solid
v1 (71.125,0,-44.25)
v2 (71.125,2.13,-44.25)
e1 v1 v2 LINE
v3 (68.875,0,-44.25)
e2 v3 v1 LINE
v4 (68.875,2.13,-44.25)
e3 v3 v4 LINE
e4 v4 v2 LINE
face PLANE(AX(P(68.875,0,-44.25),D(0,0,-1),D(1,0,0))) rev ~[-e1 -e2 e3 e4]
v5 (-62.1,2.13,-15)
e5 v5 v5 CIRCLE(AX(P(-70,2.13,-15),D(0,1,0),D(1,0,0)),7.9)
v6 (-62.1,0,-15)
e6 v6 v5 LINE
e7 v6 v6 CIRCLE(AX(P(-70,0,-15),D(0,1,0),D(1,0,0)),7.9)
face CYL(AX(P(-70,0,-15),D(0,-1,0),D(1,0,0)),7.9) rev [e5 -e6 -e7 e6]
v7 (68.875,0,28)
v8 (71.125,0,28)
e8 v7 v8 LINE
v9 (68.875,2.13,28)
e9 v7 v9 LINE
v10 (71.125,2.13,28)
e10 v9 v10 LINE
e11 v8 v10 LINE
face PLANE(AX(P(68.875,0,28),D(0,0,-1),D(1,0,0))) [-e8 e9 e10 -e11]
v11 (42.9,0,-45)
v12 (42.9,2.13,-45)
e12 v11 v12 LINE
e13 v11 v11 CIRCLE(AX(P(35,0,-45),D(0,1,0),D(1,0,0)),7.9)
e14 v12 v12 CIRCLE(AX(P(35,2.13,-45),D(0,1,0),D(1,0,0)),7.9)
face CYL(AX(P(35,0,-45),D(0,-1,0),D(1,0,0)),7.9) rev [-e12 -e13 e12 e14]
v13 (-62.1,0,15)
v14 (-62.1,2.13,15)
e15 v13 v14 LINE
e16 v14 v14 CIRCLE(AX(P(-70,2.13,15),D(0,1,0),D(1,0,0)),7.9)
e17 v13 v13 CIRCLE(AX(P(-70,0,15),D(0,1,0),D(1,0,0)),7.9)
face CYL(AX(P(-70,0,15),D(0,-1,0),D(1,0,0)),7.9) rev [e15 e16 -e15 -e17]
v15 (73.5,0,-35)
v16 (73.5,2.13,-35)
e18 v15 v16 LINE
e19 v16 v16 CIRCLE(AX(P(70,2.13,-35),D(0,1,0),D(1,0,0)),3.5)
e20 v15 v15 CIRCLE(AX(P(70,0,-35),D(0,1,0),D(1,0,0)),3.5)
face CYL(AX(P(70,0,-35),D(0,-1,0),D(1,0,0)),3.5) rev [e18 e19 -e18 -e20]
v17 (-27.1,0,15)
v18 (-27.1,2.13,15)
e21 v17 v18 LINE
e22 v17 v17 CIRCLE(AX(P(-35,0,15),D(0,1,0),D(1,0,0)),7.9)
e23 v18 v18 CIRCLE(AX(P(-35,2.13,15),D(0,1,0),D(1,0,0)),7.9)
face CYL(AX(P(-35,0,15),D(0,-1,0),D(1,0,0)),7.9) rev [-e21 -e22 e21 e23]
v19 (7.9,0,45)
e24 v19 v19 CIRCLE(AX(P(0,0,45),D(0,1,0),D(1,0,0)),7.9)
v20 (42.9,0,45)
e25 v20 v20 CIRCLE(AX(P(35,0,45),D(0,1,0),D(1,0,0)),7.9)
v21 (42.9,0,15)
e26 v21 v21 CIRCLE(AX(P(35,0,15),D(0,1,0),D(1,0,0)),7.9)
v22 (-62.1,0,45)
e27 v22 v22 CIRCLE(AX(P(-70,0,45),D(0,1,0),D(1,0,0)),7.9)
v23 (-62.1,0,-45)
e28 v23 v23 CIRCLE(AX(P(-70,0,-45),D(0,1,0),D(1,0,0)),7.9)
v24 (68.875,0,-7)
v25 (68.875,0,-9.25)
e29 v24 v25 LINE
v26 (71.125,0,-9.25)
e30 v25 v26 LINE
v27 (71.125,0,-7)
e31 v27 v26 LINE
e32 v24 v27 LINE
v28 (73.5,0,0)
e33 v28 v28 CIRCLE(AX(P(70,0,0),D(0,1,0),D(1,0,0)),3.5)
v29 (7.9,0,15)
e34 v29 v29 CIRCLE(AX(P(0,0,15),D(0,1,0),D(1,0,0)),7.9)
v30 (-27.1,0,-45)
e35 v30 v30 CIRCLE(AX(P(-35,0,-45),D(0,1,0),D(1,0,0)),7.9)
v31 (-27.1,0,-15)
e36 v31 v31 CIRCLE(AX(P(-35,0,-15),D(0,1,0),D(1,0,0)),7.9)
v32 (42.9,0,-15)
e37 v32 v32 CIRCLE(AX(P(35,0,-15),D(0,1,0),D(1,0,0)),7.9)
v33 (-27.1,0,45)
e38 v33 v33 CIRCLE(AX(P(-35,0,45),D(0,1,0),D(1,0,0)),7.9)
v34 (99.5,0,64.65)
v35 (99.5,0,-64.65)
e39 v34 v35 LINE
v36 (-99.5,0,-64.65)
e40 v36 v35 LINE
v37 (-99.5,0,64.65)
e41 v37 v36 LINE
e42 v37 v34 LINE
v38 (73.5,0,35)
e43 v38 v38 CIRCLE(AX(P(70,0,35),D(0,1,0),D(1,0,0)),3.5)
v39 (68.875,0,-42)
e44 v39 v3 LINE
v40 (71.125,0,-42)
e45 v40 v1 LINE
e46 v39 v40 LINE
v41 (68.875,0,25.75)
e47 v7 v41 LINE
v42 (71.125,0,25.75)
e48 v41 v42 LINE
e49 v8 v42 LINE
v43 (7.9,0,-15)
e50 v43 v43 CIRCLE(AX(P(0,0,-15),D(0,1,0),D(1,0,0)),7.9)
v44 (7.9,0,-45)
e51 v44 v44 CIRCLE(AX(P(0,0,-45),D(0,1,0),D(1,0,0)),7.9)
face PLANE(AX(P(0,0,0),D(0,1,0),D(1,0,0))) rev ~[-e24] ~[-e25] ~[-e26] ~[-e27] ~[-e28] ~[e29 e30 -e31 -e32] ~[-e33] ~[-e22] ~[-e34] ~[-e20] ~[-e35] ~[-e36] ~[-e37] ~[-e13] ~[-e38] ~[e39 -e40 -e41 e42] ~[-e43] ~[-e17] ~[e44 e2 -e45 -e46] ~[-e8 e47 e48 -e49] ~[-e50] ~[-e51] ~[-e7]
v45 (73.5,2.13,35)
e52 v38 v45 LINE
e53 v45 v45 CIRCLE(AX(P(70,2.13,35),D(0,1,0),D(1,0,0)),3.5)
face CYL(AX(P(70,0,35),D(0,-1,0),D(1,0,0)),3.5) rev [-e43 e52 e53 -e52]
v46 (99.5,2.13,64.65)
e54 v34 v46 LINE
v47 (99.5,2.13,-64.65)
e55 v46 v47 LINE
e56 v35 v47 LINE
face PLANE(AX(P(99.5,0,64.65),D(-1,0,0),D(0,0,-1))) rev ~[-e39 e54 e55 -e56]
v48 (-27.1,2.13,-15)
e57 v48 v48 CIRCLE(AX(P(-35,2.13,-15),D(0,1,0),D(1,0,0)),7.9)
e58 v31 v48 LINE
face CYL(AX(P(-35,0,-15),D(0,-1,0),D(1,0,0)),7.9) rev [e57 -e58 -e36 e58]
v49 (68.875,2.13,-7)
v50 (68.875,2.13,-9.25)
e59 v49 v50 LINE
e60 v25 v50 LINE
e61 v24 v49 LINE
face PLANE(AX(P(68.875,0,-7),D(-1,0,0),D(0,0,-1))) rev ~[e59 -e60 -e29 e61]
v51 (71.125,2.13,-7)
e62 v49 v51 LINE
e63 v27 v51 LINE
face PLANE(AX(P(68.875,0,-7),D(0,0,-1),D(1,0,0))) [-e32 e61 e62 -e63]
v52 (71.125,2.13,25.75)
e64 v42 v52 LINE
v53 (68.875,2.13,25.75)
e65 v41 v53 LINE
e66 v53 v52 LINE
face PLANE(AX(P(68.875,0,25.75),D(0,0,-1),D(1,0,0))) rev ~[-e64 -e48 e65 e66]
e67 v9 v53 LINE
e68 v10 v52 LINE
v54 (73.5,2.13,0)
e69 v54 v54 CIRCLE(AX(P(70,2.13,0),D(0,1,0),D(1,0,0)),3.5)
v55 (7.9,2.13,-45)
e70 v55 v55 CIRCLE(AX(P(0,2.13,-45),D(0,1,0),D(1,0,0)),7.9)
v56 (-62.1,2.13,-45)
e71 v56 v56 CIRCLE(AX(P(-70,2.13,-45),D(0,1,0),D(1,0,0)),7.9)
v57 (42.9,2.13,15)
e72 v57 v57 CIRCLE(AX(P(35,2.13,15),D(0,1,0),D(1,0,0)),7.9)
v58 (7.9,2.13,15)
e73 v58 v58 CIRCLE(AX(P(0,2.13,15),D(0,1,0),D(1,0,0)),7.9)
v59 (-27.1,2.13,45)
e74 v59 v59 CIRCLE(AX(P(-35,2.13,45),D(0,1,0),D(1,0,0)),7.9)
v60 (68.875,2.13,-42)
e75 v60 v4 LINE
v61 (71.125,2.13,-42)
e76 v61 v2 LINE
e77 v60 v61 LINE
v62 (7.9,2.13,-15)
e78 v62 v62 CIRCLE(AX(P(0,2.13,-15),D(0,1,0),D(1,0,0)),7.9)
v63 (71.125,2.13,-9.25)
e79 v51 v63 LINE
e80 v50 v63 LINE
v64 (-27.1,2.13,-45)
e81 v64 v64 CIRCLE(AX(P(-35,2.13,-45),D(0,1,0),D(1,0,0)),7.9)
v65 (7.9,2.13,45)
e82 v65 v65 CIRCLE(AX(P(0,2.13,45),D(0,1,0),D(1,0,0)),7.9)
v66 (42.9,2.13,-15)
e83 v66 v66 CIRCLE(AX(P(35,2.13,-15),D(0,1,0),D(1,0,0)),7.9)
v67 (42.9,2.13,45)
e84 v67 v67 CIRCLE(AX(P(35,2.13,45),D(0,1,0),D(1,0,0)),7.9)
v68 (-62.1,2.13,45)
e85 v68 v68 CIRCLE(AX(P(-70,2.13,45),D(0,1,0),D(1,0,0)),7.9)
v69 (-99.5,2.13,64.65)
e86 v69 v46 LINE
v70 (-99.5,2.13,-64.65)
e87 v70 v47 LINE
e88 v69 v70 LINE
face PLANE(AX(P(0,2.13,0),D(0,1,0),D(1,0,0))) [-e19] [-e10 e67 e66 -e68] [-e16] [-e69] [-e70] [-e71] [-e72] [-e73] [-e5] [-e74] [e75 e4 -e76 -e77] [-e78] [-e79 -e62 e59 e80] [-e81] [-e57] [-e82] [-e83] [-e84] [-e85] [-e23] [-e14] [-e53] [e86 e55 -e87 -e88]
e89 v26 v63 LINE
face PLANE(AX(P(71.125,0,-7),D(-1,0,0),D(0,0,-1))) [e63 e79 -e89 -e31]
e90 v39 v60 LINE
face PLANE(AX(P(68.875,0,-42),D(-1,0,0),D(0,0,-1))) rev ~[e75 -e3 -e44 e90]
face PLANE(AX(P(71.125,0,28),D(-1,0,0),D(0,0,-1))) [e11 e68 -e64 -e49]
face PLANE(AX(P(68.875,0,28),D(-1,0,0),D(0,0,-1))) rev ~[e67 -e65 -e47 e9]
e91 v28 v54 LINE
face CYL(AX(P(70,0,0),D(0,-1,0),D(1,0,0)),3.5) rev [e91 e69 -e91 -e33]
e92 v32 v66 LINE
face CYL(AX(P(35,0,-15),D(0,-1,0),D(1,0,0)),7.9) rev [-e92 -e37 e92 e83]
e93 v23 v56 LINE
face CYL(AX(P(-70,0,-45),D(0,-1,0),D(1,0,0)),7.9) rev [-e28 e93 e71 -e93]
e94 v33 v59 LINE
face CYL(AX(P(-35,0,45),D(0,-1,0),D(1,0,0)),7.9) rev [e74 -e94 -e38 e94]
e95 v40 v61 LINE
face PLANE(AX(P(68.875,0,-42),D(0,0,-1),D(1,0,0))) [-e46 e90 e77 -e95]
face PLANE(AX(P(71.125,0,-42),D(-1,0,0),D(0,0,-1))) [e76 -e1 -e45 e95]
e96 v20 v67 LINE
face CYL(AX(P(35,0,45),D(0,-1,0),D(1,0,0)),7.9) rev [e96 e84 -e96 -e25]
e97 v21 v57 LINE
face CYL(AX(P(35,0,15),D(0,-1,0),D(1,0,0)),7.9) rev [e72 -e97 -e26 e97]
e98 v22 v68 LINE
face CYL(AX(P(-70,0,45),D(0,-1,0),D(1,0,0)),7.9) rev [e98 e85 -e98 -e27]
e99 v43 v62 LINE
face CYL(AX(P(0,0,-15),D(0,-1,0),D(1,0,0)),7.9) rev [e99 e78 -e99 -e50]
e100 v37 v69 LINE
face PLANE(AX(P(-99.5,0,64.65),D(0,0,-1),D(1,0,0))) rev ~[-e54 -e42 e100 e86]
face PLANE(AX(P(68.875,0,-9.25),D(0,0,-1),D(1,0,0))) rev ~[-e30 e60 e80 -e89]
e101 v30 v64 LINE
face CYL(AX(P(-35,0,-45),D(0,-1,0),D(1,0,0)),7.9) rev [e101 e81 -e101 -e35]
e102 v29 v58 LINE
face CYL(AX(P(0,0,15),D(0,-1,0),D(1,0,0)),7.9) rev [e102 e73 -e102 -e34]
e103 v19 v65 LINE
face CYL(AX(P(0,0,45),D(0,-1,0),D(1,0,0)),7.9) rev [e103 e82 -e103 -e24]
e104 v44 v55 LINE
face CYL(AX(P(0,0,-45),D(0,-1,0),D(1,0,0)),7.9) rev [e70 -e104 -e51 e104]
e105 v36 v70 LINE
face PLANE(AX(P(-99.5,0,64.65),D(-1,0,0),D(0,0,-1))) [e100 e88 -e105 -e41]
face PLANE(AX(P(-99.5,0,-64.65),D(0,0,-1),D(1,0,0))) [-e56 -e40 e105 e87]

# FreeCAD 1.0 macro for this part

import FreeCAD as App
import Part
import Sketcher

V = App.Vector
Q = App.Units.Quantity

doc = App.newDocument("Part")
params = doc.addObject("Spreadsheet::Sheet", "Params")
for row, (alias, value) in enumerate([
    ("sketch1_diameter", "7 mm"),
    ("sketch1_diameter2", "15.8 mm"),
    ("sketch1_width", "199 mm"),
    ("sketch1_height", "129.3 mm"),
    ("sketch1_width2", "2.25 mm"),
    ("pad1_length", "2.13 mm"),
], start=1):
    params.set(f"A{row}", alias)
    params.set(f"B{row}", "=" + value)
    params.setAlias(f"B{row}", alias)

body = doc.addObject("PartDesign::Body", "Body")

# Sketch on XZ plane
sketch1 = body.newObject("Sketcher::SketchObject", "Sketch")
sketch1.AttachmentSupport = (doc.getObject("XZ_Plane"), [""])
sketch1.MapMode = "FlatFace"
sketch1.addGeometry([
    Part.LineSegment(V(-99.5, -64.7, 0), V(-99.5, 64.7, 0)),  # 0
    Part.LineSegment(V(-99.5, 64.7, 0), V(99.5, 64.7, 0)),  # 1
    Part.LineSegment(V(99.5, 64.7, 0), V(99.5, -64.7, 0)),  # 2
    Part.LineSegment(V(99.5, -64.7, 0), V(-99.5, -64.7, 0)),  # 3
    Part.Circle(V(-70, 45, 0), V(0, 0, 1), 7.9),  # 4
    Part.Circle(V(-35, 45, 0), V(0, 0, 1), 7.9),  # 5
    Part.Circle(V(-70, 15, 0), V(0, 0, 1), 7.9),  # 6
    Part.Circle(V(-35, 15, 0), V(0, 0, 1), 7.9),  # 7
    Part.Circle(V(0, 45, 0), V(0, 0, 1), 7.9),  # 8
    Part.Circle(V(35, 45, 0), V(0, 0, 1), 7.9),  # 9
    Part.Circle(V(70, 35, 0), V(0, 0, 1), 3.5),  # 10
    Part.LineSegment(V(71.1, 28, 0), V(68.9, 28, 0)),  # 11
    Part.LineSegment(V(68.9, 28, 0), V(68.9, 25.8, 0)),  # 12
    Part.LineSegment(V(68.9, 25.8, 0), V(71.1, 25.8, 0)),  # 13
    Part.LineSegment(V(71.1, 25.8, 0), V(71.1, 28, 0)),  # 14
    Part.Circle(V(0, 15, 0), V(0, 0, 1), 7.9),  # 15
    Part.Circle(V(35, 15, 0), V(0, 0, 1), 7.9),  # 16
    Part.Circle(V(-70, -15, 0), V(0, 0, 1), 7.9),  # 17
    Part.Circle(V(-35, -15, 0), V(0, 0, 1), 7.9),  # 18
    Part.Circle(V(-70, -45, 0), V(0, 0, 1), 7.9),  # 19
    Part.Circle(V(-35, -45, 0), V(0, 0, 1), 7.9),  # 20
    Part.Circle(V(0, -15, 0), V(0, 0, 1), 7.9),  # 21
    Part.Circle(V(35, -15, 0), V(0, 0, 1), 7.9),  # 22
    Part.Circle(V(70, 0, 0), V(0, 0, 1), 3.5),  # 23
    Part.LineSegment(V(71.1, -7, 0), V(68.9, -7, 0)),  # 24
    Part.LineSegment(V(68.9, -7, 0), V(68.9, -9.2, 0)),  # 25
    Part.LineSegment(V(68.9, -9.2, 0), V(71.1, -9.2, 0)),  # 26
    Part.LineSegment(V(71.1, -9.2, 0), V(71.1, -7, 0)),  # 27
    Part.Circle(V(0, -45, 0), V(0, 0, 1), 7.9),  # 28
    Part.Circle(V(35, -45, 0), V(0, 0, 1), 7.9),  # 29
    Part.Circle(V(70, -35, 0), V(0, 0, 1), 3.5),  # 30
    Part.LineSegment(V(71.1, -42, 0), V(68.9, -42, 0)),  # 31
    Part.LineSegment(V(68.9, -42, 0), V(68.9, -44.2, 0)),  # 32
    Part.LineSegment(V(68.9, -44.2, 0), V(71.1, -44.2, 0)),  # 33
    Part.LineSegment(V(71.1, -44.2, 0), V(71.1, -42, 0)),  # 34
], False)
sketch1.addConstraint([
    Sketcher.Constraint("Coincident", 0, 2, 1, 1),
    Sketcher.Constraint("Coincident", 1, 2, 2, 1),
    Sketcher.Constraint("Coincident", 2, 2, 3, 1),
    Sketcher.Constraint("Coincident", 3, 2, 0, 1),
    Sketcher.Constraint("Coincident", 11, 2, 12, 1),
    Sketcher.Constraint("Coincident", 12, 2, 13, 1),
    Sketcher.Constraint("Coincident", 13, 2, 14, 1),
    Sketcher.Constraint("Coincident", 14, 2, 11, 1),
    Sketcher.Constraint("Coincident", 24, 2, 25, 1),
    Sketcher.Constraint("Coincident", 25, 2, 26, 1),
    Sketcher.Constraint("Coincident", 26, 2, 27, 1),
    Sketcher.Constraint("Coincident", 27, 2, 24, 1),
    Sketcher.Constraint("Coincident", 31, 2, 32, 1),
    Sketcher.Constraint("Coincident", 32, 2, 33, 1),
    Sketcher.Constraint("Coincident", 33, 2, 34, 1),
    Sketcher.Constraint("Coincident", 34, 2, 31, 1),
    Sketcher.Constraint("Vertical", 0),
    Sketcher.Constraint("Horizontal", 1),
    Sketcher.Constraint("Vertical", 2),
    Sketcher.Constraint("Horizontal", 3),
    Sketcher.Constraint("Horizontal", 11),
    Sketcher.Constraint("Vertical", 12),
    Sketcher.Constraint("Horizontal", 13),
    Sketcher.Constraint("Vertical", 14),
    Sketcher.Constraint("Horizontal", 24),
    Sketcher.Constraint("Vertical", 25),
    Sketcher.Constraint("Horizontal", 26),
    Sketcher.Constraint("Vertical", 27),
    Sketcher.Constraint("Horizontal", 31),
    Sketcher.Constraint("Vertical", 32),
    Sketcher.Constraint("Horizontal", 33),
    Sketcher.Constraint("Vertical", 34),
    Sketcher.Constraint("Equal", 4, 5),
    Sketcher.Constraint("Equal", 5, 6),
    Sketcher.Constraint("Equal", 6, 7),
    Sketcher.Constraint("Equal", 7, 8),
    Sketcher.Constraint("Equal", 8, 9),
    Sketcher.Constraint("Equal", 9, 15),
    Sketcher.Constraint("Equal", 15, 16),
    Sketcher.Constraint("Equal", 16, 17),
    Sketcher.Constraint("Equal", 17, 18),
    Sketcher.Constraint("Equal", 18, 19),
    Sketcher.Constraint("Equal", 19, 20),
    Sketcher.Constraint("Equal", 20, 21),
    Sketcher.Constraint("Equal", 21, 22),
    Sketcher.Constraint("Equal", 10, 23),
    Sketcher.Constraint("Equal", 22, 28),
    Sketcher.Constraint("Equal", 28, 29),
    Sketcher.Constraint("Equal", 23, 30),
    Sketcher.Constraint("Symmetric", 16, 3, 18, 3, -1, 1),
    Sketcher.Constraint("Symmetric", 9, 3, 20, 3, -1, 1),
    Sketcher.Constraint("Symmetric", 15, 3, 21, 3, -1, 1),
    Sketcher.Constraint("Symmetric", 7, 3, 22, 3, -1, 1),
    Sketcher.Constraint("Symmetric", 8, 3, 28, 3, -1, 1),
    Sketcher.Constraint("Symmetric", 5, 3, 29, 3, -1, 1),
    Sketcher.Constraint("Symmetric", 0, 2, 2, 2, -1, 1),
    Sketcher.Constraint("Symmetric", 5, 3, 9, 3, -2),
    Sketcher.Constraint("Symmetric", 7, 3, 16, 3, -2),
    Sketcher.Constraint("Symmetric", 6, 3, 17, 3, -1),
    Sketcher.Constraint("Symmetric", 4, 3, 19, 3, -1),
    Sketcher.Constraint("Symmetric", 10, 3, 30, 3, -1),
    Sketcher.Constraint("PointOnObject", 8, 3, -2),
    Sketcher.Constraint("PointOnObject", 15, 3, -2),
    Sketcher.Constraint("PointOnObject", 23, 3, -1),
    Sketcher.Constraint("Horizontal", 4, 3, 5, 3),
    Sketcher.Constraint("Horizontal", 6, 3, 7, 3),
    Sketcher.Constraint("Horizontal", 5, 3, 8, 3),
    Sketcher.Constraint("Horizontal", 7, 3, 15, 3),
    Sketcher.Constraint("Vertical", 4, 3, 6, 3),
    Sketcher.Constraint("Vertical", 5, 3, 7, 3),
    Sketcher.Constraint("Vertical", 10, 3, 23, 3),
    Sketcher.Constraint("Vertical", 12, 2, 24, 2),
    Sketcher.Constraint("Vertical", 14, 2, 26, 2),
    Sketcher.Constraint("Vertical", 25, 2, 31, 2),
    Sketcher.Constraint("Vertical", 27, 2, 33, 2),
    Sketcher.Constraint("Equal", 33, 12),
    Sketcher.Constraint("Equal", 14, 25),
    Sketcher.Constraint("Equal", 27, 32),
    Sketcher.Constraint("Diameter", 10, Q("7 mm")),
    Sketcher.Constraint("Diameter", 4, Q("15.8 mm")),
    Sketcher.Constraint("DistanceX", 1, 1, 1, 2, Q("199 mm")),
    Sketcher.Constraint("DistanceY", 0, 1, 0, 2, Q("129.3 mm")),
    Sketcher.Constraint("DistanceX", 4, 3, -1, 1, Q("70 mm")),
    Sketcher.Constraint("DistanceY", -1, 1, 4, 3, Q("45 mm")),
    Sketcher.Constraint("DistanceX", 5, 3, -1, 1, Q("35 mm")),
    Sketcher.Constraint("DistanceY", -1, 1, 6, 3, Q("15 mm")),
    Sketcher.Constraint("DistanceX", -1, 1, 10, 3, Q("70 mm")),
    Sketcher.Constraint("DistanceY", -1, 1, 10, 3, Q("35 mm")),
    Sketcher.Constraint("DistanceY", -1, 1, 11, 2, Q("28 mm")),
    Sketcher.Constraint("DistanceY", 24, 2, -1, 1, Q("7 mm")),
    Sketcher.Constraint("DistanceY", 31, 2, -1, 1, Q("42 mm")),
    Sketcher.Constraint("DistanceX", 11, 2, 11, 1, Q("2.25 mm")),
    Sketcher.Constraint("DistanceX", -1, 1, 11, 2, Q("68.875 mm")),
])
sketch1.setExpression("Constraints[78]", "Params.sketch1_diameter")
sketch1.setExpression("Constraints[79]", "Params.sketch1_diameter2")
sketch1.setExpression("Constraints[80]", "Params.sketch1_width")
sketch1.setExpression("Constraints[81]", "Params.sketch1_height")
sketch1.setExpression("Constraints[91]", "Params.sketch1_width2")
pad1 = body.newObject("PartDesign::Pad", "Pad")
pad1.Profile = sketch1
pad1.setExpression("Length", "Params.pad1_length")
pad1.Reversed = True

doc.recompute()
